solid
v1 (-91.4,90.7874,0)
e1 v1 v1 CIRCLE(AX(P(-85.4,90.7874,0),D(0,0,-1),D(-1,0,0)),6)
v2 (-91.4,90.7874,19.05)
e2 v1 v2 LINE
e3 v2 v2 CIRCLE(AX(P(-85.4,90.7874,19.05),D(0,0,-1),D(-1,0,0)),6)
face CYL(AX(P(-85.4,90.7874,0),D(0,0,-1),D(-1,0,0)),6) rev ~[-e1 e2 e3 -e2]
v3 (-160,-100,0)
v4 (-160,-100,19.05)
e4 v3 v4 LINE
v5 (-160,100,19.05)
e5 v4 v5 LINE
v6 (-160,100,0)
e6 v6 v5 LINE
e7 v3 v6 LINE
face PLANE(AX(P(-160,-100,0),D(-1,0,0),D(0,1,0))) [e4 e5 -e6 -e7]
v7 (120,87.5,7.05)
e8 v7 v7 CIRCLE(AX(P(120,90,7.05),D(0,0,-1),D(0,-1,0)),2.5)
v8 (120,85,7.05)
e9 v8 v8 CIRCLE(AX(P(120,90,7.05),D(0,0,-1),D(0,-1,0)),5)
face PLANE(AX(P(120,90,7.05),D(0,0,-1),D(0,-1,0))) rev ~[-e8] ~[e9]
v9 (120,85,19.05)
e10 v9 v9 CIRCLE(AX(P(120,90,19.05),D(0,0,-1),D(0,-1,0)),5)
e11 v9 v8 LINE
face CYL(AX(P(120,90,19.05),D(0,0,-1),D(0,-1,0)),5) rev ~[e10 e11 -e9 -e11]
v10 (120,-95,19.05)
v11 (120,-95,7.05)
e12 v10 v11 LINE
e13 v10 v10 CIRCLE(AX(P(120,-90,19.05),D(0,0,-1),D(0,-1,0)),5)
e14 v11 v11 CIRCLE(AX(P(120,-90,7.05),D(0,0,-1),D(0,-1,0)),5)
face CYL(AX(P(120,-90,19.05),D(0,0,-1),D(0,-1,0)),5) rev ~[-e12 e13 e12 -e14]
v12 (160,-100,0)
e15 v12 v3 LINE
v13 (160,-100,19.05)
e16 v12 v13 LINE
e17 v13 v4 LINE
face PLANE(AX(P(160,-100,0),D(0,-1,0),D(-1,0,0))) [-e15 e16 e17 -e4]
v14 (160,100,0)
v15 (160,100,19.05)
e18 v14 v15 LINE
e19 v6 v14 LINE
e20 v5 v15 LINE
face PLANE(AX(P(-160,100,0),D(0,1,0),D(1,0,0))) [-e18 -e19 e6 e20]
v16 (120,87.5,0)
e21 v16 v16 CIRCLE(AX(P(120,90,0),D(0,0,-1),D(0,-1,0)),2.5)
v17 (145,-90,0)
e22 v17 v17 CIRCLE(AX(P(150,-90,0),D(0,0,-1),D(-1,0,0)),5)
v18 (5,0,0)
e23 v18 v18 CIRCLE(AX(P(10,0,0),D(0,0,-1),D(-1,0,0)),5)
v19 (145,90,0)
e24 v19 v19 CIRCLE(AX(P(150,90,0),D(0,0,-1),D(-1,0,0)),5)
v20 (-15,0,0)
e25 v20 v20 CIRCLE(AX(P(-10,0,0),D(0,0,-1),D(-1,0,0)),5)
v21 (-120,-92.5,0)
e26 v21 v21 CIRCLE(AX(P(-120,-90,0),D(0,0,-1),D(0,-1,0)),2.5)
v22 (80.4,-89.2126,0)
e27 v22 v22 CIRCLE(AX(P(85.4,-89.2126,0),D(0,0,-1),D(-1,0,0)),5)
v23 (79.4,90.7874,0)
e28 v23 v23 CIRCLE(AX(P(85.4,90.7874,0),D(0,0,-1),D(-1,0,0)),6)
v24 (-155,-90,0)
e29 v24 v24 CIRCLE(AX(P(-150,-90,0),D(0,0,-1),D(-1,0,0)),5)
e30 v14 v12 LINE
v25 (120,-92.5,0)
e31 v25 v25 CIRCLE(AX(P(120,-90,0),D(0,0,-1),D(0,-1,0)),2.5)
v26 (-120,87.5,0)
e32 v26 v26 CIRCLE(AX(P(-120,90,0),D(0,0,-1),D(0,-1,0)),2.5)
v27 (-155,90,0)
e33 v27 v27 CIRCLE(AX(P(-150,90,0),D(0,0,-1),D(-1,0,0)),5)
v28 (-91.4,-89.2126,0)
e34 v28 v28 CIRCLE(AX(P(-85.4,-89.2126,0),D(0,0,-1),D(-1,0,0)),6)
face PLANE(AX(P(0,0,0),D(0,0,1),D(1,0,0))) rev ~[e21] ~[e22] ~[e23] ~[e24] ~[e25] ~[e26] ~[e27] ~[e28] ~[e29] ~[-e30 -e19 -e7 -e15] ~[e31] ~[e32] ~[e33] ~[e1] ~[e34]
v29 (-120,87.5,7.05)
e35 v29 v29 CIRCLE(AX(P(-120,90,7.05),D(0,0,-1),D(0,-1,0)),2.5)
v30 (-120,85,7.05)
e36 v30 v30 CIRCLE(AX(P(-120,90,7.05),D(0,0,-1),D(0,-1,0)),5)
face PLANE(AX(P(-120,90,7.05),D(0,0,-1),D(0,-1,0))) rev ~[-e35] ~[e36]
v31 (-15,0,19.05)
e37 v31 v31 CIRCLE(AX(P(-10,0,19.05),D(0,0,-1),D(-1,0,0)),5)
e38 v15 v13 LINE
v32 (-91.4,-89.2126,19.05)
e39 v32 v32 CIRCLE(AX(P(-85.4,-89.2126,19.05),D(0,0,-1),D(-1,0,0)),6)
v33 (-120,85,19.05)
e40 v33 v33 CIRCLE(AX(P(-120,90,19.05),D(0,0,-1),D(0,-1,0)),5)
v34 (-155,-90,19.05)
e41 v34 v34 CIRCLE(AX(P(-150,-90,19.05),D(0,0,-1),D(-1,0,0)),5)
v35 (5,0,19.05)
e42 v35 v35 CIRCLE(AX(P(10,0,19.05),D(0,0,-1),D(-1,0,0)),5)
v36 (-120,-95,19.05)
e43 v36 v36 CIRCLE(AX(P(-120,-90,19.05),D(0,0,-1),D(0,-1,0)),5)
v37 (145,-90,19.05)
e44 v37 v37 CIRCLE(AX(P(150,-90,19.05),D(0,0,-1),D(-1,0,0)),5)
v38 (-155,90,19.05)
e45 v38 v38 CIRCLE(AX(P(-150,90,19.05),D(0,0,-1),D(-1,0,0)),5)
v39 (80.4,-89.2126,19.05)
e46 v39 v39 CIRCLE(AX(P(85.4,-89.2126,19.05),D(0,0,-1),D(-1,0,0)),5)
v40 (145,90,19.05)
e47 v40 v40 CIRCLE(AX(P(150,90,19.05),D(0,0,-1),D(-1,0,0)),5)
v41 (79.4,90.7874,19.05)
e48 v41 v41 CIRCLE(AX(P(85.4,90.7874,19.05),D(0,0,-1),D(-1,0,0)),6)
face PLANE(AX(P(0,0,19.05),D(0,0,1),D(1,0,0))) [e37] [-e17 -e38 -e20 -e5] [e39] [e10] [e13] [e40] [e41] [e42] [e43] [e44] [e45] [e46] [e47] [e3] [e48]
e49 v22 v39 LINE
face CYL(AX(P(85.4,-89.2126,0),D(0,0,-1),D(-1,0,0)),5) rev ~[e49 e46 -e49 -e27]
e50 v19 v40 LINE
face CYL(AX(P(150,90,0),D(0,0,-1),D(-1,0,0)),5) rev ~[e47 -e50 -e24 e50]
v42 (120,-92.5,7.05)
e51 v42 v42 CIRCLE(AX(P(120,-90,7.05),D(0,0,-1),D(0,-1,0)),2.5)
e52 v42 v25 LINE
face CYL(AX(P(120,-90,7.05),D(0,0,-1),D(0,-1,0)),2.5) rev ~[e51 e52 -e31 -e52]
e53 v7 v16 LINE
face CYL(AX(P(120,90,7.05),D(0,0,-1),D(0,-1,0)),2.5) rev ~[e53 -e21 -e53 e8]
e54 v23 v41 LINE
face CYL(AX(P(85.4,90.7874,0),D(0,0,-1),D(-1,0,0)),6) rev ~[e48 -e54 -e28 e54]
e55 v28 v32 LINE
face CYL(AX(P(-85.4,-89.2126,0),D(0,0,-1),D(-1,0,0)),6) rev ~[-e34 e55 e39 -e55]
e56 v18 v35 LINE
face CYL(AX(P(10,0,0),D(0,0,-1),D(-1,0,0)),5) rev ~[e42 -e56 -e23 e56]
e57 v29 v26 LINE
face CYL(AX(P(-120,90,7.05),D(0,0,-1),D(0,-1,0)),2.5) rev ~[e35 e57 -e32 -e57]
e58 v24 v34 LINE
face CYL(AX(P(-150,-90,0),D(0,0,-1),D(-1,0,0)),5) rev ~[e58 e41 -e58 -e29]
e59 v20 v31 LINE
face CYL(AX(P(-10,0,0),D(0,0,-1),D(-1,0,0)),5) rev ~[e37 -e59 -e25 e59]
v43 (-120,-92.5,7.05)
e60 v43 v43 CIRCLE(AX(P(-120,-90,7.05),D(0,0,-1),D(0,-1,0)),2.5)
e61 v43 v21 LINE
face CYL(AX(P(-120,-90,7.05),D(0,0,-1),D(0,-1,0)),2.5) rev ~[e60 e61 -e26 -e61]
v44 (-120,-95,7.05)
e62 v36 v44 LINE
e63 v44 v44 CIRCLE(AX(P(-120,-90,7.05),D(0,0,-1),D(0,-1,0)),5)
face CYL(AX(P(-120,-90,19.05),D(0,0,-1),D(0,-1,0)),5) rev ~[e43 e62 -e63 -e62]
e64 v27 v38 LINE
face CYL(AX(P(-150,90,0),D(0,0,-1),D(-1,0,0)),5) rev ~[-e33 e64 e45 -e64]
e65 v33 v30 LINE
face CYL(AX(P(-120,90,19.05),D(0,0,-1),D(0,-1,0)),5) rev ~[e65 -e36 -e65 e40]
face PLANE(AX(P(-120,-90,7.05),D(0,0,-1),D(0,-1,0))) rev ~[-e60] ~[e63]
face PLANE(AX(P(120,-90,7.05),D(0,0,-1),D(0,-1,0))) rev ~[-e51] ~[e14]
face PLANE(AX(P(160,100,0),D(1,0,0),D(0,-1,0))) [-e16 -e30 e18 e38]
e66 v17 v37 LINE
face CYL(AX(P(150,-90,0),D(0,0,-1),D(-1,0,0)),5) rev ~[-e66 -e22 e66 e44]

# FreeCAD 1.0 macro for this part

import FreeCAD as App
import Part
import Sketcher

V = App.Vector
Q = App.Units.Quantity

doc = App.newDocument("Part")
body = doc.addObject("PartDesign::Body", "Body")

sketch1 = body.newObject("Sketcher::SketchObject", "Sketch")
sketch1.AttachmentSupport = (doc.getObject("XY_Plane"), [""])
sketch1.MapMode = "FlatFace"
sketch1.addGeometry([
    Part.LineSegment(V(160, 100, 0), V(-160, 100, 0)),
    Part.LineSegment(V(-160, 100, 0), V(-160, -100, 0)),
    Part.LineSegment(V(-160, -100, 0), V(160, -100, 0)),
    Part.LineSegment(V(160, -100, 0), V(160, 100, 0)),
], False)
sketch1.addConstraint([
    Sketcher.Constraint("Coincident", 0, 2, 1, 1),
    Sketcher.Constraint("Coincident", 1, 2, 2, 1),
    Sketcher.Constraint("Coincident", 2, 2, 3, 1),
    Sketcher.Constraint("Coincident", 3, 2, 0, 1),
    Sketcher.Constraint("Horizontal", 0),
    Sketcher.Constraint("Vertical", 1),
    Sketcher.Constraint("Horizontal", 2),
    Sketcher.Constraint("Vertical", 3),
    Sketcher.Constraint("Symmetric", 0, 2, 2, 2, -1, 1),
    Sketcher.Constraint("DistanceX", 0, 2, 0, 1, Q("320 mm")),
    Sketcher.Constraint("DistanceY", 1, 2, 1, 1, Q("200 mm")),
])
pad1 = body.newObject("PartDesign::Pad", "Pad")
pad1.Profile = sketch1
pad1.Length = 19.05

sketch2 = body.newObject("Sketcher::SketchObject", "Sketch001")
sketch2.AttachmentSupport = (doc.getObject("XY_Plane"), [""])
sketch2.MapMode = "FlatFace"
sketch2.addGeometry([
    Part.Circle(V(-150, 90, 0), V(0, 0, 1), 5),
    Part.Circle(V(-85.4, 90.7874, 0), V(0, 0, 1), 6),
    Part.Circle(V(-85.4, -89.2126, 0), V(0, 0, 1), 6),
    Part.Circle(V(-150, -90, 0), V(0, 0, 1), 5),
    Part.Circle(V(-10, 0, 0), V(0, 0, 1), 5),
    Part.Circle(V(10, 0, 0), V(0, 0, 1), 5),
    Part.Circle(V(85.4, -89.2126, 0), V(0, 0, 1), 5),
    Part.Circle(V(150, -90, 0), V(0, 0, 1), 5),
    Part.Circle(V(85.4, 90.7874, 0), V(0, 0, 1), 6),
    Part.Circle(V(150, 90, 0), V(0, 0, 1), 5),
], False)
sketch2.addConstraint([
    Sketcher.Constraint("Equal", 1, 2),
    Sketcher.Constraint("Equal", 0, 3),
    Sketcher.Constraint("Equal", 3, 4),
    Sketcher.Constraint("Equal", 4, 5),
    Sketcher.Constraint("Equal", 5, 6),
    Sketcher.Constraint("Equal", 6, 7),
    Sketcher.Constraint("Equal", 2, 8),
    Sketcher.Constraint("Equal", 7, 9),
    Sketcher.Constraint("Symmetric", 4, 3, 5, 3, -1, 1),
    Sketcher.Constraint("Symmetric", 0, 3, 7, 3, -1, 1),
    Sketcher.Constraint("Symmetric", 3, 3, 9, 3, -1, 1),
    Sketcher.Constraint("Symmetric", 2, 3, 6, 3, -2),
    Sketcher.Constraint("Symmetric", 3, 3, 7, 3, -2),
    Sketcher.Constraint("Symmetric", 1, 3, 8, 3, -2),
    Sketcher.Constraint("PointOnObject", 4, 3, -1),
    Sketcher.Constraint("Vertical", 1, 3, 2, 3),
    Sketcher.Constraint("Diameter", 0, Q("10 mm")),
    Sketcher.Constraint("Diameter", 1, Q("12 mm")),
    Sketcher.Constraint("DistanceX", 4, 3, -1, 1, Q("10 mm")),
    Sketcher.Constraint("DistanceX", 0, 3, -1, 1, Q("150 mm")),
    Sketcher.Constraint("DistanceY", -1, 1, 0, 3, Q("90 mm")),
    Sketcher.Constraint("DistanceY", 2, 3, 1, 3, Q("180 mm")),
    Sketcher.Constraint("DistanceX", 1, 3, -1, 1, Q("85.4 mm")),
    Sketcher.Constraint("DistanceY", -1, 1, 1, 3, Q("90.7874 mm")),
])
pocket1 = body.newObject("PartDesign::Pocket", "Pocket")
pocket1.Profile = sketch2
pocket1.Type = "ThroughAll"
pocket1.Reversed = True

sketch3 = body.newObject("Sketcher::SketchObject", "Sketch002")
sketch3.AttachmentSupport = (doc.getObject("XY_Plane"), [""])
sketch3.MapMode = "FlatFace"
sketch3.AttachmentOffset = App.Placement(V(0, 0, 19.05), App.Rotation())
sketch3.addGeometry([
    Part.Circle(V(-120, 90, 0), V(0, 0, 1), 2.5),
    Part.Circle(V(-120, -90, 0), V(0, 0, 1), 2.5),
    Part.Circle(V(120, -90, 0), V(0, 0, 1), 2.5),
    Part.Circle(V(120, 90, 0), V(0, 0, 1), 2.5),
], False)
sketch3.addConstraint([
    Sketcher.Constraint("Equal", 0, 1),
    Sketcher.Constraint("Equal", 1, 2),
    Sketcher.Constraint("Equal", 2, 3),
    Sketcher.Constraint("Symmetric", 0, 3, 2, 3, -1, 1),
    Sketcher.Constraint("Symmetric", 1, 3, 3, 3, -1, 1),
    Sketcher.Constraint("Symmetric", 1, 3, 2, 3, -2),
    Sketcher.Constraint("Diameter", 0, Q("5 mm")),
    Sketcher.Constraint("DistanceX", 0, 3, -1, 1, Q("120 mm")),
    Sketcher.Constraint("DistanceY", -1, 1, 0, 3, Q("90 mm")),
])
doc.recompute()
hole = body.newObject("PartDesign::Hole", "Hole")
hole.Profile = sketch3
hole.ThreadType = "None"
hole.Diameter = 5
hole.DepthType = "ThroughAll"
hole.HoleCutType = "Counterbore"
hole.HoleCutDiameter = 10
hole.HoleCutDepth = 12

doc.recompute()
